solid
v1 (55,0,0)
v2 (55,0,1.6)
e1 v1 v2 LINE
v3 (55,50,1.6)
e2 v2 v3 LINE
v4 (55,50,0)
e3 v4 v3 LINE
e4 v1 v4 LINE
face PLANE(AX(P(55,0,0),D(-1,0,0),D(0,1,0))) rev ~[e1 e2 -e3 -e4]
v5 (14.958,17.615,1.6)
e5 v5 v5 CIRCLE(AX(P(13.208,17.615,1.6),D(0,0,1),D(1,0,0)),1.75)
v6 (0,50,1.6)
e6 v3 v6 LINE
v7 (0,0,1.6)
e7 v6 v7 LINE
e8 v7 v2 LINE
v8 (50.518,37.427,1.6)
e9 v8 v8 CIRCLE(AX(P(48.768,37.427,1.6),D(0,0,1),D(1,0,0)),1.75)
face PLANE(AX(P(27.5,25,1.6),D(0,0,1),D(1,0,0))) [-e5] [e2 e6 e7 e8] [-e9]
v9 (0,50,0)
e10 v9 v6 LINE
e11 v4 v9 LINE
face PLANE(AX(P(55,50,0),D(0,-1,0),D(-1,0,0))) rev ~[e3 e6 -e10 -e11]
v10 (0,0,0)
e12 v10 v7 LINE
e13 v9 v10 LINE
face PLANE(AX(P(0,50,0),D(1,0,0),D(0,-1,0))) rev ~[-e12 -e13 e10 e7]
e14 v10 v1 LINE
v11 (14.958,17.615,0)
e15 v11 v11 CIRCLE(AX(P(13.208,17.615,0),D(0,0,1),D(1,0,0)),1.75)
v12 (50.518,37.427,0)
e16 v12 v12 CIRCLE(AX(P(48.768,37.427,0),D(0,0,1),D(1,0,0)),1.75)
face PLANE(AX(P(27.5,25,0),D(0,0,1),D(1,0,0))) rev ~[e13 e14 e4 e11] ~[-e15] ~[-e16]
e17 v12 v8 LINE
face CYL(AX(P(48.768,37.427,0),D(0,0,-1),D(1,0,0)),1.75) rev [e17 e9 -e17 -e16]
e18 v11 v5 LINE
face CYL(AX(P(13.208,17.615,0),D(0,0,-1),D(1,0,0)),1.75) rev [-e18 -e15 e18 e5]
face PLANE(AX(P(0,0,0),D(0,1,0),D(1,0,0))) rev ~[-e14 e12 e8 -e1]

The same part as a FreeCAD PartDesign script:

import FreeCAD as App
import Part
import Sketcher

doc = App.newDocument("Part")
body = doc.addObject("PartDesign::Body", "Body")

# Sketch on XY plane
sketch1 = body.newObject("Sketcher::SketchObject", "Sketch")
sketch1.AttachmentSupport = (doc.getObject("XY_Plane"), [""])
sketch1.MapMode = "FlatFace"
sketch1.addGeometry([
    Part.LineSegment(App.Vector(0, 50, 0), App.Vector(0, 0, 0)),  # 0
    Part.LineSegment(App.Vector(0, 0, 0), App.Vector(55, 0, 0)),  # 1
    Part.LineSegment(App.Vector(55, 0, 0), App.Vector(55, 50, 0)),  # 2
    Part.LineSegment(App.Vector(55, 50, 0), App.Vector(0, 50, 0)),  # 3
    Part.Circle(App.Vector(13.2, 17.6, 0), App.Vector(0, 0, 1), 1.8),  # 4
    Part.Circle(App.Vector(48.8, 37.4, 0), App.Vector(0, 0, 1), 1.8),  # 5
], False)
sketch1.addConstraint([
    Sketcher.Constraint("Coincident", 0, 2, 1, 1),
    Sketcher.Constraint("Coincident", 1, 2, 2, 1),
    Sketcher.Constraint("Coincident", 2, 2, 3, 1),
    Sketcher.Constraint("Coincident", 3, 2, 0, 1),
    Sketcher.Constraint("Vertical", 0),
    Sketcher.Constraint("Horizontal", 1),
    Sketcher.Constraint("Vertical", 2),
    Sketcher.Constraint("Horizontal", 3),
    Sketcher.Constraint("Coincident", 0, 2, -1, 1),
    Sketcher.Constraint("Equal", 4, 5),
    Sketcher.Constraint("Diameter", 4, 3.5),
    Sketcher.Constraint("DistanceX", 1, 1, 1, 2, 55.0),
    Sketcher.Constraint("DistanceY", 0, 2, 0, 1, 50.0),
    Sketcher.Constraint("DistanceX", 4, 3, 5, 3, 35.56),
    Sketcher.Constraint("DistanceX", -1, 1, 4, 3, 13.208),
    Sketcher.Constraint("DistanceY", -1, 1, 4, 3, 17.615),
    Sketcher.Constraint("DistanceY", -1, 1, 5, 3, 37.427),
])
pad1 = body.newObject("PartDesign::Pad", "Pad")
pad1.Profile = sketch1
pad1.Length = 1.6

doc.recompute()
